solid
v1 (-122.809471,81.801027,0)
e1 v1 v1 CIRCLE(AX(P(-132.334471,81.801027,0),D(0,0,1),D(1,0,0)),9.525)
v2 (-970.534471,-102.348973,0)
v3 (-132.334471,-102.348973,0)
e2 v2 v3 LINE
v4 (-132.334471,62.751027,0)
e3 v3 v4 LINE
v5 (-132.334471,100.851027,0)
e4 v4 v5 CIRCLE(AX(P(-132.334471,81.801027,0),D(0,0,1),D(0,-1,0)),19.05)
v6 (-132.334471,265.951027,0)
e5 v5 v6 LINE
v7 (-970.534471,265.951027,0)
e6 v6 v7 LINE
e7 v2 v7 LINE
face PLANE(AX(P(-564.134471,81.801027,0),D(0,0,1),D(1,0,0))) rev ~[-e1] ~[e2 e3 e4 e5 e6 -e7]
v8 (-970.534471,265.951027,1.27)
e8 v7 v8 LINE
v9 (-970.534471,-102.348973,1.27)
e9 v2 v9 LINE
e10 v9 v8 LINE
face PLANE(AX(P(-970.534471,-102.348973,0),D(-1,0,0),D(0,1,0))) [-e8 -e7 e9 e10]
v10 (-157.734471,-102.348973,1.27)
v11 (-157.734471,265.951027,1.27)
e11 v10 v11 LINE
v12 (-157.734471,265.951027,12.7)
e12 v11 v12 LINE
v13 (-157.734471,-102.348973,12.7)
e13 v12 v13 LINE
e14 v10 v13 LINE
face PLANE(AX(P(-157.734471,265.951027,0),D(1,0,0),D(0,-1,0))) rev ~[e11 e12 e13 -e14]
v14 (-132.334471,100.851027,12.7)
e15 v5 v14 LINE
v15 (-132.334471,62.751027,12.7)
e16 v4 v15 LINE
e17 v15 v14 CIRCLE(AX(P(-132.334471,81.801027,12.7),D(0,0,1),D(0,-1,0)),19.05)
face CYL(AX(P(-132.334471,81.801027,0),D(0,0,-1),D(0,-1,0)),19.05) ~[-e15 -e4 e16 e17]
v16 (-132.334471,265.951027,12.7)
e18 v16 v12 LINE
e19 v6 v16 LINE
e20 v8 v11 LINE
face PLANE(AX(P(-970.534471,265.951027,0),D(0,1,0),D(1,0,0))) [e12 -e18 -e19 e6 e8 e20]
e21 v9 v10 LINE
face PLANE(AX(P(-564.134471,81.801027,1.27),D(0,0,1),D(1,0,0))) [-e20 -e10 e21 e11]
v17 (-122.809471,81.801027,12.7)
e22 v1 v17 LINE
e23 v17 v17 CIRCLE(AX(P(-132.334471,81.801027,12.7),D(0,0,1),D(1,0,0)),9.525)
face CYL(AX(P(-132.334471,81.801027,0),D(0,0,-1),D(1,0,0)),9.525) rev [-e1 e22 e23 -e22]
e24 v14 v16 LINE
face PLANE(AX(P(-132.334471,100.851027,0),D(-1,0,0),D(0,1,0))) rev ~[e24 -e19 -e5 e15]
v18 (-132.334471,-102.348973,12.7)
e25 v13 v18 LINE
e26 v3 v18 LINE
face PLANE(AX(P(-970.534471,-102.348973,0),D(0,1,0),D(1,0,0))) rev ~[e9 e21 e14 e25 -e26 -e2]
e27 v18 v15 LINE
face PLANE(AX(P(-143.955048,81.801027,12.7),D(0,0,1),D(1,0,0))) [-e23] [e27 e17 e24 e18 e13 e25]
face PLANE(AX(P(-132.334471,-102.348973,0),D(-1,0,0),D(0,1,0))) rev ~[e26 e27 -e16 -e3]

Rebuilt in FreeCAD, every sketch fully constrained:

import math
import FreeCAD as App
import Part
import Sketcher
from FreeCAD import Vector
Q = App.Units.Quantity

doc = App.newDocument("Part")
body = doc.addObject("PartDesign::Body", "Body")

# Sketch on XY plane
sketch1 = body.newObject("Sketcher::SketchObject", "Sketch")
sketch1.AttachmentSupport = (doc.getObject("XY_Plane"), [""])
sketch1.MapMode = "FlatFace"
sketch1.addGeometry([
    Part.LineSegment(Vector(-157.734471, -102.348973, 0), Vector(-132.334471, -102.348973, 0)),  # 0
    Part.LineSegment(Vector(-132.334471, -102.348973, 0), Vector(-132.334471, 62.751027, 0)),  # 1
    Part.ArcOfCircle(Part.Circle(Vector(-132.334471, 81.801027, 0), Vector(0, 0, 1), 19.05), math.radians(-90), math.radians(90)),  # 2
    Part.LineSegment(Vector(-132.334471, 100.851027, 0), Vector(-132.334471, 265.951027, 0)),  # 3
    Part.LineSegment(Vector(-132.334471, 265.951027, 0), Vector(-157.734471, 265.951027, 0)),  # 4
    Part.LineSegment(Vector(-157.734471, 265.951027, 0), Vector(-157.734471, -102.348973, 0)),  # 5
    Part.Circle(Vector(-132.334471, 81.801027, 0), Vector(0, 0, 1), 9.525),  # 6
], False)
sketch1.addConstraint([
    Sketcher.Constraint("Coincident", 0, 2, 1, 1),
    Sketcher.Constraint("Coincident", 1, 2, 2, 1),
    Sketcher.Constraint("Coincident", 2, 2, 3, 1),
    Sketcher.Constraint("Coincident", 3, 2, 4, 1),
    Sketcher.Constraint("Coincident", 4, 2, 5, 1),
    Sketcher.Constraint("Coincident", 5, 2, 0, 1),
    Sketcher.Constraint("Horizontal", 0),
    Sketcher.Constraint("Vertical", 1),
    Sketcher.Constraint("Vertical", 3),
    Sketcher.Constraint("Horizontal", 4),
    Sketcher.Constraint("Vertical", 5),
    Sketcher.Constraint("Coincident", 6, 3, 2, 3),
    Sketcher.Constraint("Vertical", 6, 3, 0, 2),
    Sketcher.Constraint("Vertical", 1, 2, 2, 2),
    Sketcher.Constraint("Equal", 1, 3),
    Sketcher.Constraint("Diameter", 6, Q("0.75 in")),
    Sketcher.Constraint("DistanceX", 0, 1, 0, 2, Q("1 in")),
    Sketcher.Constraint("Radius", 2, Q("0.75 in")),
    Sketcher.Constraint("DistanceY", 1, 1, 1, 2, Q("6.5 in")),
    Sketcher.Constraint("DistanceX", 2, 3, -1, 1, Q("132.334471 mm")),
    Sketcher.Constraint("DistanceY", -1, 1, 2, 3, Q("81.801027 mm")),
])
pad1 = body.newObject("PartDesign::Pad", "Pad")
pad1.Profile = sketch1
pad1.Length = Q("0.5 in")

# Sketch on XY plane
sketch2 = body.newObject("Sketcher::SketchObject", "Sketch001")
sketch2.AttachmentSupport = (doc.getObject("XY_Plane"), [""])
sketch2.MapMode = "FlatFace"
sketch2.addGeometry([
    Part.LineSegment(Vector(-970.534471, 265.951027, 0), Vector(-970.534471, -102.348973, 0)),
    Part.LineSegment(Vector(-970.534471, -102.348973, 0), Vector(-157.734471, -102.348973, 0)),
    Part.LineSegment(Vector(-157.734471, -102.348973, 0), Vector(-157.734471, 265.951027, 0)),
    Part.LineSegment(Vector(-157.734471, 265.951027, 0), Vector(-970.534471, 265.951027, 0)),
], False)
sketch2.addConstraint([
    Sketcher.Constraint("Coincident", 0, 2, 1, 1),
    Sketcher.Constraint("Coincident", 1, 2, 2, 1),
    Sketcher.Constraint("Coincident", 2, 2, 3, 1),
    Sketcher.Constraint("Coincident", 3, 2, 0, 1),
    Sketcher.Constraint("Vertical", 0),
    Sketcher.Constraint("Horizontal", 1),
    Sketcher.Constraint("Vertical", 2),
    Sketcher.Constraint("Horizontal", 3),
    Sketcher.Constraint("DistanceX", 1, 1, 1, 2, Q("32 in")),
    Sketcher.Constraint("DistanceY", 0, 2, 0, 1, Q("14.5 in")),
    Sketcher.Constraint("DistanceX", 0, 2, -1, 1, Q("970.534471 mm")),
    Sketcher.Constraint("DistanceY", 0, 2, -1, 1, Q("102.348973 mm")),
])
pad2 = body.newObject("PartDesign::Pad", "Pad001")
pad2.Profile = sketch2
pad2.Length = Q("0.05 in")

doc.recompute()
